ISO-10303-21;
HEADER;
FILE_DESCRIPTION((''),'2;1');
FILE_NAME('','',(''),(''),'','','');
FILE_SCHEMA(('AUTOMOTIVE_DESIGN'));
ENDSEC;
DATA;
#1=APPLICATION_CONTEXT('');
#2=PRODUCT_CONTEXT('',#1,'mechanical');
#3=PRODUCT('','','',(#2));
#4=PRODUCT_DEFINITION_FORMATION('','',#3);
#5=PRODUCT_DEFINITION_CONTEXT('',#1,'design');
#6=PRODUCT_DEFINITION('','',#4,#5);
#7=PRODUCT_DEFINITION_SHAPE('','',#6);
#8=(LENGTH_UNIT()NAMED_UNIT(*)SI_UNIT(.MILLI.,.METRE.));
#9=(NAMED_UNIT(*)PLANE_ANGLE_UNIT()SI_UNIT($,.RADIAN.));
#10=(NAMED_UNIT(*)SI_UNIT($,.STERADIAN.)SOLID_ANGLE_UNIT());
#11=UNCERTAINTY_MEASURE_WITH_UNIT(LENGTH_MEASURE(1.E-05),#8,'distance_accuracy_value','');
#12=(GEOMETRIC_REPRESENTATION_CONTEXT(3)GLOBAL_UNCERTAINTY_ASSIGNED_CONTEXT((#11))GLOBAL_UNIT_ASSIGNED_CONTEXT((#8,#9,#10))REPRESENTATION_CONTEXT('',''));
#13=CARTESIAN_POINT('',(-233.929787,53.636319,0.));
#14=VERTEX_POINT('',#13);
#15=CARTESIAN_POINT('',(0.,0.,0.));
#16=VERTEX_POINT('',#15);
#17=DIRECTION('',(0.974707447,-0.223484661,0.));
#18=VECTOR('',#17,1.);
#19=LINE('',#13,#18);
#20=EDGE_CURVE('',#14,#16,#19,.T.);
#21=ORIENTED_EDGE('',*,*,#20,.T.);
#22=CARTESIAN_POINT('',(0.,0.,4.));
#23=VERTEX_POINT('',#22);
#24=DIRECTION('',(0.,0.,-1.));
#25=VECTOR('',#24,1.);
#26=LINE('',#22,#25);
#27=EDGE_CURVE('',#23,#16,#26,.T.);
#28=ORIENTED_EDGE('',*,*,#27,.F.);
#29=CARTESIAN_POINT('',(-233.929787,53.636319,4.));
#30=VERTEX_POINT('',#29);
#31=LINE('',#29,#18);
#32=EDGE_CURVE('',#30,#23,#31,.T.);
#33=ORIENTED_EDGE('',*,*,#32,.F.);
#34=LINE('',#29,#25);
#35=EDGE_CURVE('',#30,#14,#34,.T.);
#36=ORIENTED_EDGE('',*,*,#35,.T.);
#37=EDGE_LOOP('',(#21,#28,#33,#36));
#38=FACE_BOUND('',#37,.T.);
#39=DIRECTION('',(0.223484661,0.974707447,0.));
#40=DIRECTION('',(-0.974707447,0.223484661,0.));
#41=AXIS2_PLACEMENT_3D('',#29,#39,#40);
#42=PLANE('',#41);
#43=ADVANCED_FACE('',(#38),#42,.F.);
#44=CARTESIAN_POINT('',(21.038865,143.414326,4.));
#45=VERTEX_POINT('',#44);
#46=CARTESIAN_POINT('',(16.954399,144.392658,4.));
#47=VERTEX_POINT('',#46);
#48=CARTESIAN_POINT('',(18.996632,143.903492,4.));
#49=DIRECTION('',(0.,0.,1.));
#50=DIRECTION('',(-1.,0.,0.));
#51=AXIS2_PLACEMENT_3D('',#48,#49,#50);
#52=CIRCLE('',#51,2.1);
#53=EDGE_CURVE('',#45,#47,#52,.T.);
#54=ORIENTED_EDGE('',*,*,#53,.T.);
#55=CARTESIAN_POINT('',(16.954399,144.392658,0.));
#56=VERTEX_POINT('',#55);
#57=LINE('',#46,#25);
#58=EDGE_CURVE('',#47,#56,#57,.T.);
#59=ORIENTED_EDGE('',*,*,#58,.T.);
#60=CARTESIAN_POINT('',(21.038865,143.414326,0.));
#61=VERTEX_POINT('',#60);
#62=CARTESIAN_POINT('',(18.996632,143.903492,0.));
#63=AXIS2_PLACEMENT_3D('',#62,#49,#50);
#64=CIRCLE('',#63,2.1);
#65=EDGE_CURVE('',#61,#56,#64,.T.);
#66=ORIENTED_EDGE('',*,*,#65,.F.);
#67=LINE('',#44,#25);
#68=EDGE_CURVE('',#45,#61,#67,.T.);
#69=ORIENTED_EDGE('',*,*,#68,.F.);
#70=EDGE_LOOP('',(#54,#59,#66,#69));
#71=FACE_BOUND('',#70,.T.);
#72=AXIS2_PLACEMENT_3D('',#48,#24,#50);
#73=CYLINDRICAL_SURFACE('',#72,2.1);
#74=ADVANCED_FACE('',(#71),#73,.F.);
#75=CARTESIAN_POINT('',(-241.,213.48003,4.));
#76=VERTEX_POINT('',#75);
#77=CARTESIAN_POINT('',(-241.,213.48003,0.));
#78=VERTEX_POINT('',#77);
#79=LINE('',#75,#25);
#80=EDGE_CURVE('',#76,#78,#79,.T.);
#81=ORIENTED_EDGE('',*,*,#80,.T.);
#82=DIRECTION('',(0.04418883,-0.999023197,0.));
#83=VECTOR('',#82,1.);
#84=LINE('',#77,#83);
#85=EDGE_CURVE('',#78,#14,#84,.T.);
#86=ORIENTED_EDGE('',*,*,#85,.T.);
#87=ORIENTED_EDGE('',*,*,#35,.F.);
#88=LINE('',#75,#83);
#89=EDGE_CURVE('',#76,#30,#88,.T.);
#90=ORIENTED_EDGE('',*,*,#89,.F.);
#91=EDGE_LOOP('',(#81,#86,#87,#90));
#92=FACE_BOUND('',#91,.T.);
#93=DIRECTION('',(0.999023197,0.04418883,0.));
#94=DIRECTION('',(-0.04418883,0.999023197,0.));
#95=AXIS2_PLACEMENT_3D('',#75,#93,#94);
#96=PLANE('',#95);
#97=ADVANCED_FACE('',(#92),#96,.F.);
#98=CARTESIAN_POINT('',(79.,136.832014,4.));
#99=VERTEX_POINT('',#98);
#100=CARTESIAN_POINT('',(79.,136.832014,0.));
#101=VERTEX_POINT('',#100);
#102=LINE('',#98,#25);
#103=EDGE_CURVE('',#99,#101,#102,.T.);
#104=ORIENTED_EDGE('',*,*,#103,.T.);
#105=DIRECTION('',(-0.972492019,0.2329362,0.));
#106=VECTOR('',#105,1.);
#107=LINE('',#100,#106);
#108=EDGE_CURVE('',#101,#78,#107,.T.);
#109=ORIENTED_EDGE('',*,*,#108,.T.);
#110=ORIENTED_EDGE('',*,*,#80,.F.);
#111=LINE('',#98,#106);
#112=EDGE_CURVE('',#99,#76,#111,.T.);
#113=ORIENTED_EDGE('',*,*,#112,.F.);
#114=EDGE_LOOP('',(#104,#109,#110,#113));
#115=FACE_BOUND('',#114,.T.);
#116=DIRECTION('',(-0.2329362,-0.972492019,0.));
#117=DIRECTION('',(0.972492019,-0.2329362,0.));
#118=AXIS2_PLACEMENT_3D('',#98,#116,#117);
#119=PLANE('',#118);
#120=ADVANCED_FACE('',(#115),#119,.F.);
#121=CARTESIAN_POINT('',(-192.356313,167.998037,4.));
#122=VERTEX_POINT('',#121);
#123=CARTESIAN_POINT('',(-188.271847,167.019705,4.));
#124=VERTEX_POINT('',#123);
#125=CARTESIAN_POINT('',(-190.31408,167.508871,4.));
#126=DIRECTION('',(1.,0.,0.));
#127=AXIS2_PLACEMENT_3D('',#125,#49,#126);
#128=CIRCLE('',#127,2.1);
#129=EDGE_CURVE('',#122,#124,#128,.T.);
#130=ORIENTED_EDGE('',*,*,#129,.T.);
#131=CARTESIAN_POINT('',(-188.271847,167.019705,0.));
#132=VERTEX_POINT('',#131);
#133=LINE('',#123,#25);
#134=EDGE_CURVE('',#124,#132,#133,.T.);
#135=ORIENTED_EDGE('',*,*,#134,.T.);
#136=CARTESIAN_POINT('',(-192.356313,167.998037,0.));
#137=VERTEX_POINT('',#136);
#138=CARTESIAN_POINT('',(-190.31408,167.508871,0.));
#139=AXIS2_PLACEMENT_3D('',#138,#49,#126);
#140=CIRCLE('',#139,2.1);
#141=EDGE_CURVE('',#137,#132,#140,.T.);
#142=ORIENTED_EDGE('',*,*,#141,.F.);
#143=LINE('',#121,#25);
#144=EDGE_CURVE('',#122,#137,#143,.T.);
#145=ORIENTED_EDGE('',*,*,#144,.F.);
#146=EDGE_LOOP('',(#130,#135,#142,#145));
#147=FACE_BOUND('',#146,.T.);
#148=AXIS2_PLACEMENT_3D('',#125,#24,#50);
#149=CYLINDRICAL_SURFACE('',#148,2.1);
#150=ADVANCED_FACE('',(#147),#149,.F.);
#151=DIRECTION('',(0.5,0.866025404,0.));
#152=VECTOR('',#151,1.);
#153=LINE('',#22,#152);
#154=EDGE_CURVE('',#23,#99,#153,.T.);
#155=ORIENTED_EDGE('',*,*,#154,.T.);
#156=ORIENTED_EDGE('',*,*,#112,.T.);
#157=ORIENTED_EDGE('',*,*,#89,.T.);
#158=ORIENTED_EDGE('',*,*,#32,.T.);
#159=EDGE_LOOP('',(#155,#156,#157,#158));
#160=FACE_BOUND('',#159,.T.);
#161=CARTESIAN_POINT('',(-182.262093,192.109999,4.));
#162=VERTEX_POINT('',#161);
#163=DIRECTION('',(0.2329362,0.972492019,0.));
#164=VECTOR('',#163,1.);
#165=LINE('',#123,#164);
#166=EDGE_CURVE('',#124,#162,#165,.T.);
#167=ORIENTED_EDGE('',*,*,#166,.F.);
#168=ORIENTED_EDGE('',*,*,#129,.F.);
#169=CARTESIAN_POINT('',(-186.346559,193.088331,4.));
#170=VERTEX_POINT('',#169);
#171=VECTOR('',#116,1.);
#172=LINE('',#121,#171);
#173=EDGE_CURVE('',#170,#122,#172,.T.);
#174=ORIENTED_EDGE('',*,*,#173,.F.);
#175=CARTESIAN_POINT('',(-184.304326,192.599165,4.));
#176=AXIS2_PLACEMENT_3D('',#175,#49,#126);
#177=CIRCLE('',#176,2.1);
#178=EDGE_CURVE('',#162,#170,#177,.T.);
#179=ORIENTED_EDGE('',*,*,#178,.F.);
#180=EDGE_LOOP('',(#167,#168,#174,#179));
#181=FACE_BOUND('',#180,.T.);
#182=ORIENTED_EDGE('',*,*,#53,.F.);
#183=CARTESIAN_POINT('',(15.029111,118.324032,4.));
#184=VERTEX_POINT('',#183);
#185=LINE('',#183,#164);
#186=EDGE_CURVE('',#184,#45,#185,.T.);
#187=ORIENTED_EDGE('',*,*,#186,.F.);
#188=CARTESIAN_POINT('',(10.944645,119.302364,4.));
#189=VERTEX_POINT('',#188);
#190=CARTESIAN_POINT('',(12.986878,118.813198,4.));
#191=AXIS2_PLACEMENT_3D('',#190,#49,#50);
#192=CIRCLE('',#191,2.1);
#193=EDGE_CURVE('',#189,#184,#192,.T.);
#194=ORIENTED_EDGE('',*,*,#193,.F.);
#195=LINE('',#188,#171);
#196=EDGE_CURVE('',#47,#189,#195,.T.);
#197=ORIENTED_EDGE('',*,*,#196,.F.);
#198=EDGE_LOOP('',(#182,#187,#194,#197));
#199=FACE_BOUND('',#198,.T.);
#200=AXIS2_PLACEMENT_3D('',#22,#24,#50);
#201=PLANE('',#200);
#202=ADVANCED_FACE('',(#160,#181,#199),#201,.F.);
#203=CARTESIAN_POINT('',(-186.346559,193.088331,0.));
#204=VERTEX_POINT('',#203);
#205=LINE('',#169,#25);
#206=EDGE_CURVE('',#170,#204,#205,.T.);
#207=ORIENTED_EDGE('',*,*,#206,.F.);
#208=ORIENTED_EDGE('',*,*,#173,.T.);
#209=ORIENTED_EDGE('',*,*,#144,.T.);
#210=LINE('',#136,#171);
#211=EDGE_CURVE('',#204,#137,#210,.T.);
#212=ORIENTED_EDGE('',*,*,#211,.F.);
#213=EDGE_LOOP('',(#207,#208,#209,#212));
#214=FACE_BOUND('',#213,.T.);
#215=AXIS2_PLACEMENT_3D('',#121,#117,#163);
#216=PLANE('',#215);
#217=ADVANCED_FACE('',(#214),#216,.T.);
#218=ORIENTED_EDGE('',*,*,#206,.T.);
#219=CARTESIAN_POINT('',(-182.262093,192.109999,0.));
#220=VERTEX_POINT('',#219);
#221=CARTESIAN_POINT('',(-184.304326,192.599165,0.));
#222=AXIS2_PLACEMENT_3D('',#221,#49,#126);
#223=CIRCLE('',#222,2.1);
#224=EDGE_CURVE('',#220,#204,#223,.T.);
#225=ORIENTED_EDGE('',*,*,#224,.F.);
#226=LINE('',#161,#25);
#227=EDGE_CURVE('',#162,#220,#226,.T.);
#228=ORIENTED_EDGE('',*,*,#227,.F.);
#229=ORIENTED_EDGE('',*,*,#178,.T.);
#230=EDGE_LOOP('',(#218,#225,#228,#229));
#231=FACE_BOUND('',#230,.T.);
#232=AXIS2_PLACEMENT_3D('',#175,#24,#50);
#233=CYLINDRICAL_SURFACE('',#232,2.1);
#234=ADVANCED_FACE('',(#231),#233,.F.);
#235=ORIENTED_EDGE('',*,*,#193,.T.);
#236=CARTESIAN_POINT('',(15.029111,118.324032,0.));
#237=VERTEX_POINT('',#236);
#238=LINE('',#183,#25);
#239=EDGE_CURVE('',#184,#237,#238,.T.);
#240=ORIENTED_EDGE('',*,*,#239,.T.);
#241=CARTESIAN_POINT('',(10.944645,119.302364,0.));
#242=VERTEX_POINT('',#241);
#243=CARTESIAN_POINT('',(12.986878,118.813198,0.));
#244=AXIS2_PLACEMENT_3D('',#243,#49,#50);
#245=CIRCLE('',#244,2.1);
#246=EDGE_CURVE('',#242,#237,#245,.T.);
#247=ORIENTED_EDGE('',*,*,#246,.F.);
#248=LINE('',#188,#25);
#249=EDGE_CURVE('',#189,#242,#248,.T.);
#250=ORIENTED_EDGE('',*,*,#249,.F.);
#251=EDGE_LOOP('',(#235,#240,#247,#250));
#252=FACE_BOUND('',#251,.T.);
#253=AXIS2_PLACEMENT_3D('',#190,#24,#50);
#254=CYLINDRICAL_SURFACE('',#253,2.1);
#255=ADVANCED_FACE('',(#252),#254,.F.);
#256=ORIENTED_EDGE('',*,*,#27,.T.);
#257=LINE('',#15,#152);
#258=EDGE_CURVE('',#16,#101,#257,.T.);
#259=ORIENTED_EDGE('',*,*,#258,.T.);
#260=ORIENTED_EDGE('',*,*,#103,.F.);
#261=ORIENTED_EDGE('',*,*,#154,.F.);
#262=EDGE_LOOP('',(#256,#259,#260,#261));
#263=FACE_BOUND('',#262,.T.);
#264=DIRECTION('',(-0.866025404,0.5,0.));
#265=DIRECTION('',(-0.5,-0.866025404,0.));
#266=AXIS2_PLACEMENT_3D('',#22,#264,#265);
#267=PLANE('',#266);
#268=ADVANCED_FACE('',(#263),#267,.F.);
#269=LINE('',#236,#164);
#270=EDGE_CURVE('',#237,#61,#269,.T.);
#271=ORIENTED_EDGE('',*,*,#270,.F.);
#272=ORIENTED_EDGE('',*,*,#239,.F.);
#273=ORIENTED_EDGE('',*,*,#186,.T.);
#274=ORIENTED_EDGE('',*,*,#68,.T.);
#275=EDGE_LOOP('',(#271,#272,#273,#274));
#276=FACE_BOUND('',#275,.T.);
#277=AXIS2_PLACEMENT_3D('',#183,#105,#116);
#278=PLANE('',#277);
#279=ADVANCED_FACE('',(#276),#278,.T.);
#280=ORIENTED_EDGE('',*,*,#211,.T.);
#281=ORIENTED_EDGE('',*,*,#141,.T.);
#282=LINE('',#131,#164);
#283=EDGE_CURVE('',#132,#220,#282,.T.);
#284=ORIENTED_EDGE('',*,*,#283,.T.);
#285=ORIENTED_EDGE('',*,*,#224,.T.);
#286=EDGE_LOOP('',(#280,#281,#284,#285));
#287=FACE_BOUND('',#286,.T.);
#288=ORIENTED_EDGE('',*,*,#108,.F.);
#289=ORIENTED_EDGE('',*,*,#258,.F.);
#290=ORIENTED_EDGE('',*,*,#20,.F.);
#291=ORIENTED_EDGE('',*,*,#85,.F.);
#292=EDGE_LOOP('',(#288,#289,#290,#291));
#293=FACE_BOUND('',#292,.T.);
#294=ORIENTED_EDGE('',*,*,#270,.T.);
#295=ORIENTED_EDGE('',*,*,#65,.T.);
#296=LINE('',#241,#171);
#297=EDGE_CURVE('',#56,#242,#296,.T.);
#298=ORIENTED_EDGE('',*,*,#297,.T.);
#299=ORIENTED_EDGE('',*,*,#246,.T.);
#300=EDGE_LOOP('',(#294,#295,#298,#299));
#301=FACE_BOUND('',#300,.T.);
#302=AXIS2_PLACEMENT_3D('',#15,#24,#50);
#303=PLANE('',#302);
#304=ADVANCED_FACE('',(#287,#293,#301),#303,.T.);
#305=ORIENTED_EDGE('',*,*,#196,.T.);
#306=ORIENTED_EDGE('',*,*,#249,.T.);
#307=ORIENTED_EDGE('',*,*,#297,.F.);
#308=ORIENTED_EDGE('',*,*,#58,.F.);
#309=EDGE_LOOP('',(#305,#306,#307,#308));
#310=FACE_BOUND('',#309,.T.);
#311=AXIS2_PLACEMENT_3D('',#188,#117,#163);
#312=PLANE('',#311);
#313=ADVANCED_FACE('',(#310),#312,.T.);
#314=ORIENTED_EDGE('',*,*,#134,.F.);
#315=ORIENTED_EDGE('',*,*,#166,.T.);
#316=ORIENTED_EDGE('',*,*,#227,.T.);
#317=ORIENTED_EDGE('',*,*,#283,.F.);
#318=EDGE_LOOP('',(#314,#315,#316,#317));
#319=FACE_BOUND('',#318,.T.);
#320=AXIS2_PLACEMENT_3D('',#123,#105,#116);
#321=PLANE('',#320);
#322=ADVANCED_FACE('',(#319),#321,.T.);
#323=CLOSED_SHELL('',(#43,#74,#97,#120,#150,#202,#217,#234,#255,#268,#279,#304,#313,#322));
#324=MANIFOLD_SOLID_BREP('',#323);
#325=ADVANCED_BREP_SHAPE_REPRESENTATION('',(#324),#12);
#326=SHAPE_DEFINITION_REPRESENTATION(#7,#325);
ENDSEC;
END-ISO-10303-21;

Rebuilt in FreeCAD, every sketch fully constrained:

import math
import FreeCAD as App
import Part
import Sketcher
from FreeCAD import Vector
Q = App.Units.Quantity


def add_polygon(sketch, points):
    """Adds a closed chain of lines whose ends are joined by coincident constraints."""
    first, n = sketch.GeometryCount, len(points)
    for a, b in zip(points, points[1:] + points[:1]):
        sketch.addGeometry(Part.LineSegment(App.Vector(*a, 0), App.Vector(*b, 0)), False)
    for i in range(n):
        sketch.addConstraint(Sketcher.Constraint("Coincident", first + i, 2, first + (i + 1) % n, 1))

doc = App.newDocument("Part")
body = doc.addObject("PartDesign::Body", "Body")

sketch1 = body.newObject("Sketcher::SketchObject", "Sketch")
sketch1.AttachmentSupport = (doc.getObject("XY_Plane"), [""])
sketch1.MapMode = "FlatFace"
add_polygon(sketch1, [(0, 0), (79, 136.8), (-241, 213.5), (-233.9, 53.6)])
sketch1.addGeometry(Part.LineSegment(Vector(21, 143.4, 0), Vector(15, 118.3, 0)), False)
sketch1.addGeometry(Part.ArcOfCircle(Part.Circle(Vector(13, 118.8, 0), Vector(0, 0, 1), 2.1), math.radians(167), math.radians(347)), False)
sketch1.addGeometry(Part.LineSegment(Vector(10.9, 119.3, 0), Vector(17, 144.4, 0)), False)
sketch1.addGeometry(Part.ArcOfCircle(Part.Circle(Vector(19, 143.9, 0), Vector(0, 0, 1), 2.1), math.radians(-13), math.radians(167)), False)
sketch1.addGeometry(Part.ArcOfCircle(Part.Circle(Vector(-190.3, 167.5, 0), Vector(0, 0, 1), 2.1), math.radians(167), math.radians(347)), False)
sketch1.addGeometry(Part.LineSegment(Vector(-192.4, 168, 0), Vector(-186.3, 193.1, 0)), False)
sketch1.addGeometry(Part.ArcOfCircle(Part.Circle(Vector(-184.3, 192.6, 0), Vector(0, 0, 1), 2.1), math.radians(-13), math.radians(167)), False)
sketch1.addGeometry(Part.LineSegment(Vector(-182.3, 192.1, 0), Vector(-188.3, 167, 0)), False)
sketch1.addConstraint([
    Sketcher.Constraint("Tangent", 4, 2, 5, 2),
    Sketcher.Constraint("Tangent", 5, 1, 6, 1),
    Sketcher.Constraint("Tangent", 6, 2, 7, 2),
    Sketcher.Constraint("Tangent", 7, 1, 4, 1),
    Sketcher.Constraint("Tangent", 8, 1, 9, 1),
    Sketcher.Constraint("Tangent", 9, 2, 10, 2),
    Sketcher.Constraint("Tangent", 10, 1, 11, 1),
    Sketcher.Constraint("Tangent", 11, 2, 8, 2),
    Sketcher.Constraint("Coincident", 3, 2, -1, 1),
    Sketcher.Constraint("Equal", 5, 7),
    Sketcher.Constraint("Equal", 7, 8),
    Sketcher.Constraint("Equal", 8, 10),
    Sketcher.Constraint("Perpendicular", 1, 4),
    Sketcher.Constraint("Parallel", 6, 9),
    Sketcher.Constraint("Equal", 6, 9),
    Sketcher.Constraint("Radius", 5, 2.1),
    Sketcher.Constraint("Angle", 0, Q("60 deg")),
    Sketcher.Constraint("Distance", 0, 158.0),
    Sketcher.Constraint("Distance", 2, 160.0),
    Sketcher.Constraint("Distance", 3, 240.0),
    Sketcher.Constraint("DistanceX", 1, 2, -1, 1, 241.0),
    Sketcher.Constraint("Distance", 4, 25.8),
    Sketcher.Constraint("Angle", 1, Q("166.53 deg")),
    Sketcher.Constraint("DistanceY", -1, 1, 10, 1, 192.109999),
    Sketcher.Constraint("DistanceY", -1, 1, 5, 3, 118.813198),
    Sketcher.Constraint("DistanceX", -1, 1, 6, 2, 16.954399),
    Sketcher.Constraint("DistanceX", 8, 3, -1, 1, 190.31408),
])
pad1 = body.newObject("PartDesign::Pad", "Pad")
pad1.Profile = sketch1
pad1.Length = 4

doc.recompute()
